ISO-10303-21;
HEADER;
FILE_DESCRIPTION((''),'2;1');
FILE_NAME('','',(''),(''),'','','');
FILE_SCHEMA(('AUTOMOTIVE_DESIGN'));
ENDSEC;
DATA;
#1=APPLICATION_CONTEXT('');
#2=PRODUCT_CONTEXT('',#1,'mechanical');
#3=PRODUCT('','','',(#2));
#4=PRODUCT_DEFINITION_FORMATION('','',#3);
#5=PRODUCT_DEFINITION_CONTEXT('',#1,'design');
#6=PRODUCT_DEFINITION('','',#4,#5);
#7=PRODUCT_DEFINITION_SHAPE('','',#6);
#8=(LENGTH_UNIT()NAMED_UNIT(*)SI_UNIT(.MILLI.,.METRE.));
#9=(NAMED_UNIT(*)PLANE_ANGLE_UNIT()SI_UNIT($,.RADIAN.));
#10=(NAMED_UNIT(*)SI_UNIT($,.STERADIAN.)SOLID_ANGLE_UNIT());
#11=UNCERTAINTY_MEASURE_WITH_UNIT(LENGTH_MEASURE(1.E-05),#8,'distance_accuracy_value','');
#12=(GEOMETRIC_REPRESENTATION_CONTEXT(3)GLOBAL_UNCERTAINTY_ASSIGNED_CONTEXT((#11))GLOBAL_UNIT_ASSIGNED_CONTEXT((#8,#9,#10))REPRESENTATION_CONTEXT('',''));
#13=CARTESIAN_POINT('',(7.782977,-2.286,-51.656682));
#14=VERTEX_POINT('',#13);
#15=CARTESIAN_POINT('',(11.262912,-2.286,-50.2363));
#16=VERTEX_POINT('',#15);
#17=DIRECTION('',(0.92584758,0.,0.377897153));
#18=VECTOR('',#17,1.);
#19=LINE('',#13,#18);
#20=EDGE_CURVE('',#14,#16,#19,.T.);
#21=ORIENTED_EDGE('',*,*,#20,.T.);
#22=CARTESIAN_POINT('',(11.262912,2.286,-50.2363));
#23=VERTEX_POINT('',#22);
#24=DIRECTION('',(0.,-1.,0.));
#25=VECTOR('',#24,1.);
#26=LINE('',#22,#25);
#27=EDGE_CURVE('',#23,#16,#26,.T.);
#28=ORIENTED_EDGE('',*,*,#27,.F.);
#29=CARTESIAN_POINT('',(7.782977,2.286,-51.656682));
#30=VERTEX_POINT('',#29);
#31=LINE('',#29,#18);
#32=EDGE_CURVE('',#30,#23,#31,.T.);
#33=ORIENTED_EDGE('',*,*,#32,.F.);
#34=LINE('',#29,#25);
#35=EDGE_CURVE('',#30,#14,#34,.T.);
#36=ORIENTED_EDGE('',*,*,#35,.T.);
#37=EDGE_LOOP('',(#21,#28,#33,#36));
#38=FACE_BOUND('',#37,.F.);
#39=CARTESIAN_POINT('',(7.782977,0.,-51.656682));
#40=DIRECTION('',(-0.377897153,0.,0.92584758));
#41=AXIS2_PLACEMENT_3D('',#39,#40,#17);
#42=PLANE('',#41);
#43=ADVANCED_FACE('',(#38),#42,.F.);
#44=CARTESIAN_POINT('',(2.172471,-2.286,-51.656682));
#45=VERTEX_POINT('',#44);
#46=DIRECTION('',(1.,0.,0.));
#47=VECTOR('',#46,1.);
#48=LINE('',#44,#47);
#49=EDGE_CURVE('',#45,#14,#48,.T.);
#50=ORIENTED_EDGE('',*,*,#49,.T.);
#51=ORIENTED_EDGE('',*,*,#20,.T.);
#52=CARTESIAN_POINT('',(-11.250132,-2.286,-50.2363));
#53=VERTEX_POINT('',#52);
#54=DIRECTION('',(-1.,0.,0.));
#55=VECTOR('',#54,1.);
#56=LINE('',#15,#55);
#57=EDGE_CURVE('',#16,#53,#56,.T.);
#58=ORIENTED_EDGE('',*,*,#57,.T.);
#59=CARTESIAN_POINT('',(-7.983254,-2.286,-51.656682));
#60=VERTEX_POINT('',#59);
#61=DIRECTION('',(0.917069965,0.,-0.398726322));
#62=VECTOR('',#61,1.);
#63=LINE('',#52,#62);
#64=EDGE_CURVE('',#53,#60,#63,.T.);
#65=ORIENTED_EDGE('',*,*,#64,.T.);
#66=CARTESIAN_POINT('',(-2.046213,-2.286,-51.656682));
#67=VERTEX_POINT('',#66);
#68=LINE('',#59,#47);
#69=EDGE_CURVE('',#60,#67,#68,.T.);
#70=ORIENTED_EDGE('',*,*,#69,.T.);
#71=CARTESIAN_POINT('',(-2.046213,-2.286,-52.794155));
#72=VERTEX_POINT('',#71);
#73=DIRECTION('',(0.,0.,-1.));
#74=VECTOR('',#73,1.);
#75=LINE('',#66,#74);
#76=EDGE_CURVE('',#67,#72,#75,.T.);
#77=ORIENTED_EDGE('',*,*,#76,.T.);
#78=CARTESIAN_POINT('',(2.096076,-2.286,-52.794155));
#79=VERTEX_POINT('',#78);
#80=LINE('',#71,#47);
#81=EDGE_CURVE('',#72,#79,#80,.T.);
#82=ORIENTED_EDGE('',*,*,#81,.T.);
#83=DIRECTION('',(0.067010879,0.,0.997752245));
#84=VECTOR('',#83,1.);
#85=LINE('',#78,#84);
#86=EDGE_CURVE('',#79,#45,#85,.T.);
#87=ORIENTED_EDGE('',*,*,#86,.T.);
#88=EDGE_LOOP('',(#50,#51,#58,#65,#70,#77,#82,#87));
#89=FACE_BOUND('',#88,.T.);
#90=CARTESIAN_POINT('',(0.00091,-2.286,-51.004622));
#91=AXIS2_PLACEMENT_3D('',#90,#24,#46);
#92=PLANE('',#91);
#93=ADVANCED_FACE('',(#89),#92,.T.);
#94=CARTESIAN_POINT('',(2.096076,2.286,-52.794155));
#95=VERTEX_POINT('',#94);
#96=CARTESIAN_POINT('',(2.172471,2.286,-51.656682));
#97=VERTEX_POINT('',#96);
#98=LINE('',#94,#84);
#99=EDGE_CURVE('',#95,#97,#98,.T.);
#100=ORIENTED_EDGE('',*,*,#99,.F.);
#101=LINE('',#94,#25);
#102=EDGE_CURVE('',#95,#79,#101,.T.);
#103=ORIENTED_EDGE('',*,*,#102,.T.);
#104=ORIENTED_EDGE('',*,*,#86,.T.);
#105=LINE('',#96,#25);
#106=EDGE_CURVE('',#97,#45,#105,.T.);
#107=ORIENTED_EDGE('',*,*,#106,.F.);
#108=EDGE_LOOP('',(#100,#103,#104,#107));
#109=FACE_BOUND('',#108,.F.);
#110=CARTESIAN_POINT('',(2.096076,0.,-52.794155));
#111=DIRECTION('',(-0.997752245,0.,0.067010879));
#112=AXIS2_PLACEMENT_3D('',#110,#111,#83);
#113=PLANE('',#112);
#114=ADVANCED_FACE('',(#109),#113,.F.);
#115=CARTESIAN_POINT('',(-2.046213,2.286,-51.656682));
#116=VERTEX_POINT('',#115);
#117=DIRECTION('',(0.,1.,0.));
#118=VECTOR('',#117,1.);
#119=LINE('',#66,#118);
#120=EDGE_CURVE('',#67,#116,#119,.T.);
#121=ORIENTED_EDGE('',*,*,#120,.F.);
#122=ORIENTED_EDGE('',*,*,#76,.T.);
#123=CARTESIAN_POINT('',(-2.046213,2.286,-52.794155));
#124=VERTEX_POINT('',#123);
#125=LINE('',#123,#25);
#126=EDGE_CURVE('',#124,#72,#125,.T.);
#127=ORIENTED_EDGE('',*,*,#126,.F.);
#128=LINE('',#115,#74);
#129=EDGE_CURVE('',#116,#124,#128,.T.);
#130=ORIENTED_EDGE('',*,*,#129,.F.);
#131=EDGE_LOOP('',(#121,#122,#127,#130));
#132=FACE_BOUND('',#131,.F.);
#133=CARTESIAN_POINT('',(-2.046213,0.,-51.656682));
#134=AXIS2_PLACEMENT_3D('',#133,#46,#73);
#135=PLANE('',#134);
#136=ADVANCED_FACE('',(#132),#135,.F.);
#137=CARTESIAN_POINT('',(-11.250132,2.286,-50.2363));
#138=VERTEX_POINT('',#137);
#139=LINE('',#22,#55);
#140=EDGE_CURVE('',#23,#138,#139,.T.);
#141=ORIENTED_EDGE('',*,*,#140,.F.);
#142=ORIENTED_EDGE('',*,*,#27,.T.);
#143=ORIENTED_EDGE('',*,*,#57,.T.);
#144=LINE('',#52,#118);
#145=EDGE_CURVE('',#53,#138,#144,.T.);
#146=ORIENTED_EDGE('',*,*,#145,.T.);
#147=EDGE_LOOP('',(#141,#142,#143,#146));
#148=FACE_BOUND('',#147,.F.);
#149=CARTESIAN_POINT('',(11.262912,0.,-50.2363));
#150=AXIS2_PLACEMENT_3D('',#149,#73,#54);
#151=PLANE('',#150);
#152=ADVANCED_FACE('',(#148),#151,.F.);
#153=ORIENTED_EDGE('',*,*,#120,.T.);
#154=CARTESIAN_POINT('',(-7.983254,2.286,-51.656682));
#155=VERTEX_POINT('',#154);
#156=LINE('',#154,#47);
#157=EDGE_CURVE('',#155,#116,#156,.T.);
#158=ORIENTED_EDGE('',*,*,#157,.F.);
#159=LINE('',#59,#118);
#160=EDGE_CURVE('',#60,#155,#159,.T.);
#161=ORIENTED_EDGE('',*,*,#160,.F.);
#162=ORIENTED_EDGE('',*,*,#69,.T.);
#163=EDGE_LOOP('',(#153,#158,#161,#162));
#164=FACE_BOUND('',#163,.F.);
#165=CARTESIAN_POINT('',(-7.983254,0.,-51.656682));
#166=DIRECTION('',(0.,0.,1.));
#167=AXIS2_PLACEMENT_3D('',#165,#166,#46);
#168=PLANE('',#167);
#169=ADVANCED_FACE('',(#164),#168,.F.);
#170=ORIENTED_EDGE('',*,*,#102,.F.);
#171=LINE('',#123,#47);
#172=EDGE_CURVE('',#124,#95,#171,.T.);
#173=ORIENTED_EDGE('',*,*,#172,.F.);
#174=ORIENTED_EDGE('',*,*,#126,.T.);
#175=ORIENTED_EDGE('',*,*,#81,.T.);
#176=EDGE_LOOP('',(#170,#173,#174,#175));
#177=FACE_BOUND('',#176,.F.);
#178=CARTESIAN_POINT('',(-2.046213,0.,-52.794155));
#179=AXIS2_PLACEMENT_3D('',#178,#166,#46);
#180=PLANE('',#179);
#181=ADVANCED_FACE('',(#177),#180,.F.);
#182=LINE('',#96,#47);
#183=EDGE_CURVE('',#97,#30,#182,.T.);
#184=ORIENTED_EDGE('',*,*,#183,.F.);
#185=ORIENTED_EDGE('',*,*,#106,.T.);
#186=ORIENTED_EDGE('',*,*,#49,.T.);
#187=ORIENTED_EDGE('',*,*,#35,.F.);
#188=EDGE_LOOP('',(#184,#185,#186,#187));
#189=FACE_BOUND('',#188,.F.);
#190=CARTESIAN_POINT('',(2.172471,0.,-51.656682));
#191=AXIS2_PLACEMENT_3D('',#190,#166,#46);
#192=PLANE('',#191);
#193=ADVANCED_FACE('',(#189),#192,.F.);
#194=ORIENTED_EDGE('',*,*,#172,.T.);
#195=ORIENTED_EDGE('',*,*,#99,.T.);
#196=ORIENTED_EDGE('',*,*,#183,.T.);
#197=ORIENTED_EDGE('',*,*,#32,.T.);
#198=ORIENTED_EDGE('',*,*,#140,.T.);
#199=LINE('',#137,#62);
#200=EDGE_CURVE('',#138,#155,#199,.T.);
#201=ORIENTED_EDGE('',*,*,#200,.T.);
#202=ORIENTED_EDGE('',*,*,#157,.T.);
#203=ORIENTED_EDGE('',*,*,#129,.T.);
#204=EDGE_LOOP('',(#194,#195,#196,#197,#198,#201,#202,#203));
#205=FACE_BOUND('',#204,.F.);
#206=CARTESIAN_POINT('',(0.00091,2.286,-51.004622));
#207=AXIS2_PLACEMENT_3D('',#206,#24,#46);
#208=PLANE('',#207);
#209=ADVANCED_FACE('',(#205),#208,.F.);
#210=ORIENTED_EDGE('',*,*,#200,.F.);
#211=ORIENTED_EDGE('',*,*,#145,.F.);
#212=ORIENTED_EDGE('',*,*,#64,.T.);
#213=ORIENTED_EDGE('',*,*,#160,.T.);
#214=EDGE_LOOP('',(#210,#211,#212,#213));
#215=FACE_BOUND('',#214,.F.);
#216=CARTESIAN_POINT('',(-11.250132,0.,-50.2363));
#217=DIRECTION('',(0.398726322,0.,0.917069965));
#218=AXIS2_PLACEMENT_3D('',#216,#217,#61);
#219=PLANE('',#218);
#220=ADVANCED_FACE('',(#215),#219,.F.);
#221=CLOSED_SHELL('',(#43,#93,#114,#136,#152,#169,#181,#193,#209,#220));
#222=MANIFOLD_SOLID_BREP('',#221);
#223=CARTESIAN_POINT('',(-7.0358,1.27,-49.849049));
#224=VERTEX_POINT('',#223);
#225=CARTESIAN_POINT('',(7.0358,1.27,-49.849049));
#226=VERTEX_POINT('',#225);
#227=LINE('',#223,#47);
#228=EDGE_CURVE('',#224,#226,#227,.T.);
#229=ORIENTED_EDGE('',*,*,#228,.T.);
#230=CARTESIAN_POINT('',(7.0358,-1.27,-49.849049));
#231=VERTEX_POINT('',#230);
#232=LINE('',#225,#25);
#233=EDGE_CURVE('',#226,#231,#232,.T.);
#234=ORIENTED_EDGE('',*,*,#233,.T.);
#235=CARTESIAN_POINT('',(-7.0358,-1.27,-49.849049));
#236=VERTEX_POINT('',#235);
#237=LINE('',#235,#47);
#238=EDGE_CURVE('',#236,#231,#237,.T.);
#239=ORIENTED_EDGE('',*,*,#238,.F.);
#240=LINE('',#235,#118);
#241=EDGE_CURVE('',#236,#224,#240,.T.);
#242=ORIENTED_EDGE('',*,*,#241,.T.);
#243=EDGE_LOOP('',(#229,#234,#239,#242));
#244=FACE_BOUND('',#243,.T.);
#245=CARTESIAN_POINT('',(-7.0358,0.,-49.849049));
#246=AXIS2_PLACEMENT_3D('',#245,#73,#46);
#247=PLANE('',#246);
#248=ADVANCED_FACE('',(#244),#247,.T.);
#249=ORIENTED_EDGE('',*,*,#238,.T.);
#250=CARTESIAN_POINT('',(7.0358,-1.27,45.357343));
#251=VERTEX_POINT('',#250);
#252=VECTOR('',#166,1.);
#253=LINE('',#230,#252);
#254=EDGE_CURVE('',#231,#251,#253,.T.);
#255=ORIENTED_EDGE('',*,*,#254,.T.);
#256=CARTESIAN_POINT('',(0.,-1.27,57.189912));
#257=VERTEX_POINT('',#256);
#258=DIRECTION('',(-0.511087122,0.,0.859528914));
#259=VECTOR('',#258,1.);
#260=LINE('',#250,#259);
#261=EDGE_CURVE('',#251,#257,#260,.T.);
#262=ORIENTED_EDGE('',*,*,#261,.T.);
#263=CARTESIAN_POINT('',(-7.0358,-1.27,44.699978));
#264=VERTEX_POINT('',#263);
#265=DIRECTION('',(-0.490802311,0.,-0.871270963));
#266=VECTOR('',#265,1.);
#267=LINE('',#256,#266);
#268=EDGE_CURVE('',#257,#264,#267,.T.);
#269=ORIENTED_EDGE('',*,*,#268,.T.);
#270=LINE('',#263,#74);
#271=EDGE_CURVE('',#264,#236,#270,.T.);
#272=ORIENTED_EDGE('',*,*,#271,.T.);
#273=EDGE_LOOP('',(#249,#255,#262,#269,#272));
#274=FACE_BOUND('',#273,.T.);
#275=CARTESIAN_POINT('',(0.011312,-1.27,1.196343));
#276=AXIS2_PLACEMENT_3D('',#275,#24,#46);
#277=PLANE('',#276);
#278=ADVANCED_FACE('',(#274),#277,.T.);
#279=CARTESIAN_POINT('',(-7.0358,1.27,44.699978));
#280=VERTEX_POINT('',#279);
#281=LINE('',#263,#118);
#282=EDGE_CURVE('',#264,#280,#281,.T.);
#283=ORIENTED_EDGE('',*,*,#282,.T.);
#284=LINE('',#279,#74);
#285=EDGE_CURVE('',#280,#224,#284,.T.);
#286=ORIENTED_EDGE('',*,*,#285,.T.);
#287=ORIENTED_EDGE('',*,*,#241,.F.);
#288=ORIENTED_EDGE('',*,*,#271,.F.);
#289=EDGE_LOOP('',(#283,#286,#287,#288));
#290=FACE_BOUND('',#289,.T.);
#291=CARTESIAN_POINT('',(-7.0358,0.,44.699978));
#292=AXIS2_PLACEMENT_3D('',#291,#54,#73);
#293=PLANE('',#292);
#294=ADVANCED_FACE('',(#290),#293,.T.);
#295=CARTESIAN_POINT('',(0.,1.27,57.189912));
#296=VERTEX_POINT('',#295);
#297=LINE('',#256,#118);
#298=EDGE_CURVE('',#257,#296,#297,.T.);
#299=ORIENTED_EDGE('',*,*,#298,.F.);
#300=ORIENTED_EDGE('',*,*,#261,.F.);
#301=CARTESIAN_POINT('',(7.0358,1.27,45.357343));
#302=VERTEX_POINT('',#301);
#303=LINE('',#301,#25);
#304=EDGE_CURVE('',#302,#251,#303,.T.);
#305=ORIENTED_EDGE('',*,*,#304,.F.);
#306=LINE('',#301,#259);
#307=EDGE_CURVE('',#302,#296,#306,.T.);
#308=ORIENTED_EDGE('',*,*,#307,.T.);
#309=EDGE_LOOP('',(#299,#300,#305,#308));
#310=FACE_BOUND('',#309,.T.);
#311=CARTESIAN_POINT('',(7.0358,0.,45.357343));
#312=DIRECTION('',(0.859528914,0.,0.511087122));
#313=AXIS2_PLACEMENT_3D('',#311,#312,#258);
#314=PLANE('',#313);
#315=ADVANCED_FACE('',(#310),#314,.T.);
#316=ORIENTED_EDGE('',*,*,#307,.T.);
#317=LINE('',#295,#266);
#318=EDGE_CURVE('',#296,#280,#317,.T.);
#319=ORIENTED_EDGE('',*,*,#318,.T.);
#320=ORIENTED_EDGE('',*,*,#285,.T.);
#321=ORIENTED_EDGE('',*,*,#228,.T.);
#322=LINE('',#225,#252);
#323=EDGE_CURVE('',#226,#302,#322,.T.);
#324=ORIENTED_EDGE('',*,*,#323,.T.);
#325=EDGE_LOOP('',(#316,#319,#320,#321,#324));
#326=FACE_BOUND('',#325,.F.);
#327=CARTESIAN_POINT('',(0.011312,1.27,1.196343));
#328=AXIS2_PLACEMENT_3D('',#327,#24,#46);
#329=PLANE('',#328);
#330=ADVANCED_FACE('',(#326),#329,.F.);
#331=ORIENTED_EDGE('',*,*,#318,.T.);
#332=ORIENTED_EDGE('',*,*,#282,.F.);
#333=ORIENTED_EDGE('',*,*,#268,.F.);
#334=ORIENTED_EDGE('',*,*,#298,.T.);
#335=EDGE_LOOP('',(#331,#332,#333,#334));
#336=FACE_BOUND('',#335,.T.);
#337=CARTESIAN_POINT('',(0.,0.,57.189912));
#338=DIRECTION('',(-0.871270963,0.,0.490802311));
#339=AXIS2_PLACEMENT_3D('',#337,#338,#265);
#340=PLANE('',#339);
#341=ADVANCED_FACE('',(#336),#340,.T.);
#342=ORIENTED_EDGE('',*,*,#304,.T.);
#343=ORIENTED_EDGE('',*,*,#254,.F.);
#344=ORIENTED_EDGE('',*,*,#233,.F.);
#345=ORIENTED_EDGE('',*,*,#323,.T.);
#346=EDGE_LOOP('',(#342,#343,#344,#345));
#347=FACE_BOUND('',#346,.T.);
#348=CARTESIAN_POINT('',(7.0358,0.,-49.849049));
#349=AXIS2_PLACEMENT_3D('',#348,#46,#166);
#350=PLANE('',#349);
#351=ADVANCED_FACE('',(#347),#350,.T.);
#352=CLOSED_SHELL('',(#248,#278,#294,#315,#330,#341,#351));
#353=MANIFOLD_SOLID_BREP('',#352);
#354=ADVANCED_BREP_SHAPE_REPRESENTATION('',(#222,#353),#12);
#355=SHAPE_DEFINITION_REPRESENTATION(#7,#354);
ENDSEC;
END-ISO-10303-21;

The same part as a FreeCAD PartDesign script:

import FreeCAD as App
import Part
import Sketcher

V = App.Vector
Q = App.Units.Quantity

doc = App.newDocument("Part")
body = doc.addObject("PartDesign::Body", "Body")

# Sketch on XZ plane
sketch1 = body.newObject("Sketcher::SketchObject", "Sketch")
sketch1.AttachmentSupport = (doc.getObject("XZ_Plane"), [""])
sketch1.MapMode = "FlatFace"
sketch1.addGeometry([
    Part.LineSegment(V(-2.046213, -51.656682, 0), V(-2.046213, -52.794155, 0)),  # 0
    Part.LineSegment(V(-2.046213, -52.794155, 0), V(2.096076, -52.794155, 0)),  # 1
    Part.LineSegment(V(2.096076, -52.794155, 0), V(2.172471, -51.656682, 0)),  # 2
    Part.LineSegment(V(2.172471, -51.656682, 0), V(7.782977, -51.656682, 0)),  # 3
    Part.LineSegment(V(7.782977, -51.656682, 0), V(11.262912, -50.2363, 0)),  # 4
    Part.LineSegment(V(11.262912, -50.2363, 0), V(-11.250132, -50.2363, 0)),  # 5
    Part.LineSegment(V(-11.250132, -50.2363, 0), V(-7.983254, -51.656682, 0)),  # 6
    Part.LineSegment(V(-7.983254, -51.656682, 0), V(-2.046213, -51.656682, 0)),  # 7
], False)
sketch1.addConstraint([
    Sketcher.Constraint("Coincident", 0, 2, 1, 1),
    Sketcher.Constraint("Coincident", 1, 2, 2, 1),
    Sketcher.Constraint("Coincident", 2, 2, 3, 1),
    Sketcher.Constraint("Coincident", 3, 2, 4, 1),
    Sketcher.Constraint("Coincident", 4, 2, 5, 1),
    Sketcher.Constraint("Coincident", 5, 2, 6, 1),
    Sketcher.Constraint("Coincident", 6, 2, 7, 1),
    Sketcher.Constraint("Coincident", 7, 2, 0, 1),
    Sketcher.Constraint("Vertical", 0),
    Sketcher.Constraint("Horizontal", 1),
    Sketcher.Constraint("Horizontal", 3),
    Sketcher.Constraint("Horizontal", 5),
    Sketcher.Constraint("Horizontal", 7),
    Sketcher.Constraint("Horizontal", 3, 2, 6, 2),
    Sketcher.Constraint("Distance", 6, 3.562299),
    Sketcher.Constraint("DistanceX", 1, 1, 1, 2, 4.14229),
    Sketcher.Constraint("DistanceX", 7, 1, 7, 2, 5.937041),
    Sketcher.Constraint("DistanceY", 4, 2, -1, 1, 50.2363),
    Sketcher.Constraint("DistanceX", 1, 2, 3, 2, 5.686901),
    Sketcher.Constraint("Distance", 4, 3.758648),
    Sketcher.Constraint("DistanceX", 3, 1, 3, 2, 5.610506),
    Sketcher.Constraint("DistanceX", 5, 2, 5, 1, 22.513044),
    Sketcher.Constraint("DistanceY", 0, 2, 0, 1, 1.137473),
    Sketcher.Constraint("DistanceX", -1, 1, 2, 2, 2.172471),
])
pad1 = body.newObject("PartDesign::Pad", "Pad")
pad1.Profile = sketch1
pad1.Type = "TwoLengths"
pad1.Length = Q("0.09 in")
pad1.Length2 = Q("0.09 in")
pad1.Reversed = True
body2 = doc.addObject("PartDesign::Body", "Body001")

# Sketch on XZ plane
sketch2 = body2.newObject("Sketcher::SketchObject", "Sketch001")
sketch2.AttachmentSupport = (doc.getObject("XZ_Plane001"), [""])
sketch2.MapMode = "FlatFace"
sketch2.addGeometry([
    Part.LineSegment(V(-7.0358, -49.849049, 0), V(7.0358, -49.849049, 0)),  # 0
    Part.LineSegment(V(7.0358, -49.849049, 0), V(7.0358, 45.357343, 0)),  # 1
    Part.LineSegment(V(7.0358, 45.357343, 0), V(0, 57.189912, 0)),  # 2
    Part.LineSegment(V(0, 57.189912, 0), V(-7.0358, 44.699978, 0)),  # 3
    Part.LineSegment(V(-7.0358, 44.699978, 0), V(-7.0358, -49.849049, 0)),  # 4
], False)
sketch2.addConstraint([
    Sketcher.Constraint("Coincident", 0, 2, 1, 1),
    Sketcher.Constraint("Coincident", 1, 2, 2, 1),
    Sketcher.Constraint("Coincident", 2, 2, 3, 1),
    Sketcher.Constraint("Coincident", 3, 2, 4, 1),
    Sketcher.Constraint("Coincident", 4, 2, 0, 1),
    Sketcher.Constraint("Horizontal", 0),
    Sketcher.Constraint("Vertical", 1),
    Sketcher.Constraint("Vertical", 4),
    Sketcher.Constraint("PointOnObject", 2, 2, -2),
    Sketcher.Constraint("DistanceX", 0, 1, 0, 2, Q("0.554 in")),
    Sketcher.Constraint("DistanceX", -1, 1, 0, 2, Q("0.277 in")),
    Sketcher.Constraint("DistanceY", 1, 1, 1, 2, 95.206392),
    Sketcher.Constraint("Distance", 2, 13.766342),
    Sketcher.Constraint("DistanceY", 4, 2, 4, 1, 94.549027),
    Sketcher.Constraint("DistanceY", 0, 2, -1, 1, 49.849049),
])
pad2 = body2.newObject("PartDesign::Pad", "Pad001")
pad2.Profile = sketch2
pad2.Type = "TwoLengths"
pad2.Length = Q("0.05 in")
pad2.Length2 = Q("0.05 in")

doc.recompute()
